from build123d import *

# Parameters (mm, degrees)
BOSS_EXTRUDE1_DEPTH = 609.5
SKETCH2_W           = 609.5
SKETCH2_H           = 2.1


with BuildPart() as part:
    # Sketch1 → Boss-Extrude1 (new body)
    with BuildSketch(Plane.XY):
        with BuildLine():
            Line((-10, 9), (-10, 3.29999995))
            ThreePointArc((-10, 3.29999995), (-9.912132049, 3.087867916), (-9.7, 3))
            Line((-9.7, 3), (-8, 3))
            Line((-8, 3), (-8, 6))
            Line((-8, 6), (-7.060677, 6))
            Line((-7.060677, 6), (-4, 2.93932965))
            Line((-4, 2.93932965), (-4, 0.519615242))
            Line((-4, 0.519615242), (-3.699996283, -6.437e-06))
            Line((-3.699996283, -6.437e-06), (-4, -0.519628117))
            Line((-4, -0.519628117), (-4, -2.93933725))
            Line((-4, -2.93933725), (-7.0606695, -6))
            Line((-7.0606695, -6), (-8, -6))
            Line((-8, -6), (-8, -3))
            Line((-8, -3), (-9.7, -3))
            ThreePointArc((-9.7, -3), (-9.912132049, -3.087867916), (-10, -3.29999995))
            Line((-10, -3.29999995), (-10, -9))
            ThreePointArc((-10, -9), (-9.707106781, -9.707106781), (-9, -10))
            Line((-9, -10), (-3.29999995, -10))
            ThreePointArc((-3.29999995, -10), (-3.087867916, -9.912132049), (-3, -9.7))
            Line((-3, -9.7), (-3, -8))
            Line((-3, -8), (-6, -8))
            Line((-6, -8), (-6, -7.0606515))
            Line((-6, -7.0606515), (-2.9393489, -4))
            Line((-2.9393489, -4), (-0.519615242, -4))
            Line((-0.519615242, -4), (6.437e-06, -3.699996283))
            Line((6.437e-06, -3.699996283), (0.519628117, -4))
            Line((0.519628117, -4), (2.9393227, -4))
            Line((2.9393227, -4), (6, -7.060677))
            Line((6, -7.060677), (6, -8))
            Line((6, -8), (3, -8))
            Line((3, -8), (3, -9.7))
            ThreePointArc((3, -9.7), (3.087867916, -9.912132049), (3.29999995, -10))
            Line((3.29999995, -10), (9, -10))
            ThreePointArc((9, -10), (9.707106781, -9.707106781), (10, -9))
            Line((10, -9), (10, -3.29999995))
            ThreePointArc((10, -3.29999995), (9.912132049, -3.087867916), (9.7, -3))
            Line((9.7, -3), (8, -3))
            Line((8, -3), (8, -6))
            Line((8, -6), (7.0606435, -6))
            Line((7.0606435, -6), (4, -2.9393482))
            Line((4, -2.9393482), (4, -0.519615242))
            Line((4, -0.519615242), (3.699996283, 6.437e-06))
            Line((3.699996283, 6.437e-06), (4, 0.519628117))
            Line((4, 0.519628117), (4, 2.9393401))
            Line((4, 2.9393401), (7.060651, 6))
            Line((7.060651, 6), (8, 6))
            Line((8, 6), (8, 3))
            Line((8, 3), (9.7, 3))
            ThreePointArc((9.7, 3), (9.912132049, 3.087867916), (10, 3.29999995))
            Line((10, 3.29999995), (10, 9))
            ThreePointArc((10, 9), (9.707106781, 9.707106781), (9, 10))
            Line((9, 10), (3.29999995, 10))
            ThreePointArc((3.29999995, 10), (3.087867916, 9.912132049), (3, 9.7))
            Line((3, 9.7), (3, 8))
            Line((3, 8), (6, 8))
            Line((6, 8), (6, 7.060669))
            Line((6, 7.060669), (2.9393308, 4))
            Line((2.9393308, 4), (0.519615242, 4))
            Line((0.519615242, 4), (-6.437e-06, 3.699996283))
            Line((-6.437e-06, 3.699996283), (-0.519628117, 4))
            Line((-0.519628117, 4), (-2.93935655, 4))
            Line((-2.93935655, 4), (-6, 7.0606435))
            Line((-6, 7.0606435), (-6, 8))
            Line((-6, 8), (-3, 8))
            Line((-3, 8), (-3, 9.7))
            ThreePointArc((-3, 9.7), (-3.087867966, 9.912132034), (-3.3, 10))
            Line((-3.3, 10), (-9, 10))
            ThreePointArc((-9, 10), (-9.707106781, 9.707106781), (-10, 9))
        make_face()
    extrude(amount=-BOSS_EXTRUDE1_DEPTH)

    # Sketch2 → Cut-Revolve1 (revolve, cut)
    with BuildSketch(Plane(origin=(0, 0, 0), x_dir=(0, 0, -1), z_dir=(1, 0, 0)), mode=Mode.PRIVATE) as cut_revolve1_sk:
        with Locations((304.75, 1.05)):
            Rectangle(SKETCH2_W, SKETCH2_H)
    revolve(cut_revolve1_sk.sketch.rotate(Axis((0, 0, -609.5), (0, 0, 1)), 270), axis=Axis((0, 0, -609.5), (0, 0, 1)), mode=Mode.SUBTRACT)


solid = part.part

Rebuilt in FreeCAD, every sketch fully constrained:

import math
import FreeCAD as App
import Part
import Sketcher
from FreeCAD import Vector
Q = App.Units.Quantity

doc = App.newDocument("Part")
params = doc.addObject("Spreadsheet::Sheet", "Params")
for row, (alias, value) in enumerate([
    ("sketch1_radius", "1 mm"),
    ("sketch1_radius2", "0.3 mm"),
    ("sketch1_width", "3 mm"),
    ("sketch1_width2", "1.7 mm"),
    ("sketch1_width3", "5.7 mm"),
    ("pad1_length", "609.5 mm"),
    ("sketch2_width", "2.1 mm"),
    ("sketch2_height", "609.5 mm"),
    ("groove_angle", "360 deg"),
], start=1):
    params.set(f"A{row}", alias)
    params.set(f"B{row}", "=" + value)
    params.setAlias(f"B{row}", alias)

body = doc.addObject("PartDesign::Body", "Body")

# Sketch on XY plane
sketch1 = body.newObject("Sketcher::SketchObject", "Sketch")
sketch1.AttachmentSupport = (doc.getObject("XY_Plane"), [""])
sketch1.MapMode = "FlatFace"
sketch1.addGeometry([
    Part.LineSegment(Vector(-10, 9, 0), Vector(-10, 3.3, 0)),  # 0
    Part.ArcOfCircle(Part.Circle(Vector(-9.7, 3.3, 0), Vector(0, 0, 1), 0.3), math.radians(180), math.radians(270)),  # 1
    Part.LineSegment(Vector(-9.7, 3, 0), Vector(-8, 3, 0)),  # 2
    Part.LineSegment(Vector(-8, 3, 0), Vector(-8, 6, 0)),  # 3
    Part.LineSegment(Vector(-8, 6, 0), Vector(-7.06, 6, 0)),  # 4
    Part.LineSegment(Vector(-7.06, 6, 0), Vector(-4, 2.94, 0)),  # 5
    Part.LineSegment(Vector(-4, 2.94, 0), Vector(-4, 0.52, 0)),  # 6
    Part.LineSegment(Vector(-4, 0.52, 0), Vector(-3.7, 0, 0)),  # 7
    Part.LineSegment(Vector(-3.7, 0, 0), Vector(-4, -0.52, 0)),  # 8
    Part.LineSegment(Vector(-4, -0.52, 0), Vector(-4, -2.94, 0)),  # 9
    Part.LineSegment(Vector(-4, -2.94, 0), Vector(-7.06, -6, 0)),  # 10
    Part.LineSegment(Vector(-7.06, -6, 0), Vector(-8, -6, 0)),  # 11
    Part.LineSegment(Vector(-8, -6, 0), Vector(-8, -3, 0)),  # 12
    Part.LineSegment(Vector(-8, -3, 0), Vector(-9.7, -3, 0)),  # 13
    Part.ArcOfCircle(Part.Circle(Vector(-9.7, -3.3, 0), Vector(0, 0, 1), 0.3), math.radians(90), math.radians(180)),  # 14
    Part.LineSegment(Vector(-10, -3.3, 0), Vector(-10, -9, 0)),  # 15
    Part.ArcOfCircle(Part.Circle(Vector(-9, -9, 0), Vector(0, 0, 1), 1), math.radians(-180), math.radians(-90)),  # 16
    Part.LineSegment(Vector(-9, -10, 0), Vector(-3.3, -10, 0)),  # 17
    Part.ArcOfCircle(Part.Circle(Vector(-3.3, -9.7, 0), Vector(0, 0, 1), 0.3), math.radians(-90), math.radians(0)),  # 18
    Part.LineSegment(Vector(-3, -9.7, 0), Vector(-3, -8, 0)),  # 19
    Part.LineSegment(Vector(-3, -8, 0), Vector(-6, -8, 0)),  # 20
    Part.LineSegment(Vector(-6, -8, 0), Vector(-6, -7.06, 0)),  # 21
    Part.LineSegment(Vector(-6, -7.06, 0), Vector(-2.94, -4, 0)),  # 22
    Part.LineSegment(Vector(-2.94, -4, 0), Vector(-0.52, -4, 0)),  # 23
    Part.LineSegment(Vector(-0.52, -4, 0), Vector(0, -3.7, 0)),  # 24
    Part.LineSegment(Vector(0, -3.7, 0), Vector(0.52, -4, 0)),  # 25
    Part.LineSegment(Vector(0.52, -4, 0), Vector(2.94, -4, 0)),  # 26
    Part.LineSegment(Vector(2.94, -4, 0), Vector(6, -7.06, 0)),  # 27
    Part.LineSegment(Vector(6, -7.06, 0), Vector(6, -8, 0)),  # 28
    Part.LineSegment(Vector(6, -8, 0), Vector(3, -8, 0)),  # 29
    Part.LineSegment(Vector(3, -8, 0), Vector(3, -9.7, 0)),  # 30
    Part.ArcOfCircle(Part.Circle(Vector(3.3, -9.7, 0), Vector(0, 0, 1), 0.3), math.radians(180), math.radians(270)),  # 31
    Part.LineSegment(Vector(3.3, -10, 0), Vector(9, -10, 0)),  # 32
    Part.ArcOfCircle(Part.Circle(Vector(9, -9, 0), Vector(0, 0, 1), 1), math.radians(-90), math.radians(0)),  # 33
    Part.LineSegment(Vector(10, -9, 0), Vector(10, -3.3, 0)),  # 34
    Part.ArcOfCircle(Part.Circle(Vector(9.7, -3.3, 0), Vector(0, 0, 1), 0.3), math.radians(0), math.radians(90)),  # 35
    Part.LineSegment(Vector(9.7, -3, 0), Vector(8, -3, 0)),  # 36
    Part.LineSegment(Vector(8, -3, 0), Vector(8, -6, 0)),  # 37
    Part.LineSegment(Vector(8, -6, 0), Vector(7.06, -6, 0)),  # 38
    Part.LineSegment(Vector(7.06, -6, 0), Vector(4, -2.94, 0)),  # 39
    Part.LineSegment(Vector(4, -2.94, 0), Vector(4, -0.52, 0)),  # 40
    Part.LineSegment(Vector(4, -0.52, 0), Vector(3.7, 0, 0)),  # 41
    Part.LineSegment(Vector(3.7, 0, 0), Vector(4, 0.52, 0)),  # 42
    Part.LineSegment(Vector(4, 0.52, 0), Vector(4, 2.94, 0)),  # 43
    Part.LineSegment(Vector(4, 2.94, 0), Vector(7.06, 6, 0)),  # 44
    Part.LineSegment(Vector(7.06, 6, 0), Vector(8, 6, 0)),  # 45
    Part.LineSegment(Vector(8, 6, 0), Vector(8, 3, 0)),  # 46
    Part.LineSegment(Vector(8, 3, 0), Vector(9.7, 3, 0)),  # 47
    Part.ArcOfCircle(Part.Circle(Vector(9.7, 3.3, 0), Vector(0, 0, 1), 0.3), math.radians(-90), math.radians(0)),  # 48
    Part.LineSegment(Vector(10, 3.3, 0), Vector(10, 9, 0)),  # 49
    Part.ArcOfCircle(Part.Circle(Vector(9, 9, 0), Vector(0, 0, 1), 1), math.radians(0), math.radians(90)),  # 50
    Part.LineSegment(Vector(9, 10, 0), Vector(3.3, 10, 0)),  # 51
    Part.ArcOfCircle(Part.Circle(Vector(3.3, 9.7, 0), Vector(0, 0, 1), 0.3), math.radians(90), math.radians(180)),  # 52
    Part.LineSegment(Vector(3, 9.7, 0), Vector(3, 8, 0)),  # 53
    Part.LineSegment(Vector(3, 8, 0), Vector(6, 8, 0)),  # 54
    Part.LineSegment(Vector(6, 8, 0), Vector(6, 7.06, 0)),  # 55
    Part.LineSegment(Vector(6, 7.06, 0), Vector(2.94, 4, 0)),  # 56
    Part.LineSegment(Vector(2.94, 4, 0), Vector(0.52, 4, 0)),  # 57
    Part.LineSegment(Vector(0.52, 4, 0), Vector(0, 3.7, 0)),  # 58
    Part.LineSegment(Vector(0, 3.7, 0), Vector(-0.52, 4, 0)),  # 59
    Part.LineSegment(Vector(-0.52, 4, 0), Vector(-2.94, 4, 0)),  # 60
    Part.LineSegment(Vector(-2.94, 4, 0), Vector(-6, 7.06, 0)),  # 61
    Part.LineSegment(Vector(-6, 7.06, 0), Vector(-6, 8, 0)),  # 62
    Part.LineSegment(Vector(-6, 8, 0), Vector(-3, 8, 0)),  # 63
    Part.LineSegment(Vector(-3, 8, 0), Vector(-3, 9.7, 0)),  # 64
    Part.ArcOfCircle(Part.Circle(Vector(-3.3, 9.7, 0), Vector(0, 0, 1), 0.3), math.radians(0), math.radians(90)),  # 65
    Part.LineSegment(Vector(-3.3, 10, 0), Vector(-9, 10, 0)),  # 66
    Part.ArcOfCircle(Part.Circle(Vector(-9, 9, 0), Vector(0, 0, 1), 1), math.radians(90), math.radians(180)),  # 67
], False)
sketch1.addConstraint([
    Sketcher.Constraint("Tangent", 0, 2, 1, 1),
    Sketcher.Constraint("Tangent", 1, 2, 2, 1),
    Sketcher.Constraint("Coincident", 2, 2, 3, 1),
    Sketcher.Constraint("Coincident", 3, 2, 4, 1),
    Sketcher.Constraint("Coincident", 4, 2, 5, 1),
    Sketcher.Constraint("Coincident", 5, 2, 6, 1),
    Sketcher.Constraint("Coincident", 6, 2, 7, 1),
    Sketcher.Constraint("Coincident", 7, 2, 8, 1),
    Sketcher.Constraint("Coincident", 8, 2, 9, 1),
    Sketcher.Constraint("Coincident", 9, 2, 10, 1),
    Sketcher.Constraint("Coincident", 10, 2, 11, 1),
    Sketcher.Constraint("Coincident", 11, 2, 12, 1),
    Sketcher.Constraint("Coincident", 12, 2, 13, 1),
    Sketcher.Constraint("Tangent", 13, 2, 14, 1),
    Sketcher.Constraint("Tangent", 14, 2, 15, 1),
    Sketcher.Constraint("Tangent", 15, 2, 16, 1),
    Sketcher.Constraint("Tangent", 16, 2, 17, 1),
    Sketcher.Constraint("Tangent", 17, 2, 18, 1),
    Sketcher.Constraint("Tangent", 18, 2, 19, 1),
    Sketcher.Constraint("Coincident", 19, 2, 20, 1),
    Sketcher.Constraint("Coincident", 20, 2, 21, 1),
    Sketcher.Constraint("Coincident", 21, 2, 22, 1),
    Sketcher.Constraint("Coincident", 22, 2, 23, 1),
    Sketcher.Constraint("Coincident", 23, 2, 24, 1),
    Sketcher.Constraint("Coincident", 24, 2, 25, 1),
    Sketcher.Constraint("Coincident", 25, 2, 26, 1),
    Sketcher.Constraint("Coincident", 26, 2, 27, 1),
    Sketcher.Constraint("Coincident", 27, 2, 28, 1),
    Sketcher.Constraint("Coincident", 28, 2, 29, 1),
    Sketcher.Constraint("Coincident", 29, 2, 30, 1),
    Sketcher.Constraint("Tangent", 30, 2, 31, 1),
    Sketcher.Constraint("Tangent", 31, 2, 32, 1),
    Sketcher.Constraint("Tangent", 32, 2, 33, 1),
    Sketcher.Constraint("Tangent", 33, 2, 34, 1),
    Sketcher.Constraint("Tangent", 34, 2, 35, 1),
    Sketcher.Constraint("Tangent", 35, 2, 36, 1),
    Sketcher.Constraint("Coincident", 36, 2, 37, 1),
    Sketcher.Constraint("Coincident", 37, 2, 38, 1),
    Sketcher.Constraint("Coincident", 38, 2, 39, 1),
    Sketcher.Constraint("Coincident", 39, 2, 40, 1),
    Sketcher.Constraint("Coincident", 40, 2, 41, 1),
    Sketcher.Constraint("Coincident", 41, 2, 42, 1),
    Sketcher.Constraint("Coincident", 42, 2, 43, 1),
    Sketcher.Constraint("Coincident", 43, 2, 44, 1),
    Sketcher.Constraint("Coincident", 44, 2, 45, 1),
    Sketcher.Constraint("Coincident", 45, 2, 46, 1),
    Sketcher.Constraint("Coincident", 46, 2, 47, 1),
    Sketcher.Constraint("Tangent", 47, 2, 48, 1),
    Sketcher.Constraint("Tangent", 48, 2, 49, 1),
    Sketcher.Constraint("Tangent", 49, 2, 50, 1),
    Sketcher.Constraint("Tangent", 50, 2, 51, 1),
    Sketcher.Constraint("Tangent", 51, 2, 52, 1),
    Sketcher.Constraint("Tangent", 52, 2, 53, 1),
    Sketcher.Constraint("Coincident", 53, 2, 54, 1),
    Sketcher.Constraint("Coincident", 54, 2, 55, 1),
    Sketcher.Constraint("Coincident", 55, 2, 56, 1),
    Sketcher.Constraint("Coincident", 56, 2, 57, 1),
    Sketcher.Constraint("Coincident", 57, 2, 58, 1),
    Sketcher.Constraint("Coincident", 58, 2, 59, 1),
    Sketcher.Constraint("Coincident", 59, 2, 60, 1),
    Sketcher.Constraint("Coincident", 60, 2, 61, 1),
    Sketcher.Constraint("Coincident", 61, 2, 62, 1),
    Sketcher.Constraint("Coincident", 62, 2, 63, 1),
    Sketcher.Constraint("Coincident", 63, 2, 64, 1),
    Sketcher.Constraint("Tangent", 64, 2, 65, 1),
    Sketcher.Constraint("Tangent", 65, 2, 66, 1),
    Sketcher.Constraint("Tangent", 66, 2, 67, 1),
    Sketcher.Constraint("Tangent", 67, 2, 0, 1),
    Sketcher.Constraint("Vertical", 0),
    Sketcher.Constraint("Horizontal", 2),
    Sketcher.Constraint("Vertical", 3),
    Sketcher.Constraint("Horizontal", 4),
    Sketcher.Constraint("Vertical", 6),
    Sketcher.Constraint("Vertical", 9),
    Sketcher.Constraint("Horizontal", 11),
    Sketcher.Constraint("Vertical", 12),
    Sketcher.Constraint("Horizontal", 13),
    Sketcher.Constraint("Vertical", 15),
    Sketcher.Constraint("Horizontal", 17),
    Sketcher.Constraint("Vertical", 19),
    Sketcher.Constraint("Horizontal", 20),
    Sketcher.Constraint("Vertical", 21),
    Sketcher.Constraint("Horizontal", 23),
    Sketcher.Constraint("Horizontal", 26),
    Sketcher.Constraint("Vertical", 28),
    Sketcher.Constraint("Horizontal", 29),
    Sketcher.Constraint("Vertical", 30),
    Sketcher.Constraint("Horizontal", 32),
    Sketcher.Constraint("Vertical", 34),
    Sketcher.Constraint("Horizontal", 36),
    Sketcher.Constraint("Vertical", 37),
    Sketcher.Constraint("Horizontal", 38),
    Sketcher.Constraint("Vertical", 40),
    Sketcher.Constraint("Vertical", 43),
    Sketcher.Constraint("Horizontal", 45),
    Sketcher.Constraint("Vertical", 46),
    Sketcher.Constraint("Horizontal", 47),
    Sketcher.Constraint("Vertical", 49),
    Sketcher.Constraint("Horizontal", 51),
    Sketcher.Constraint("Vertical", 53),
    Sketcher.Constraint("Horizontal", 54),
    Sketcher.Constraint("Vertical", 55),
    Sketcher.Constraint("Horizontal", 57),
    Sketcher.Constraint("Horizontal", 60),
    Sketcher.Constraint("Vertical", 62),
    Sketcher.Constraint("Horizontal", 63),
    Sketcher.Constraint("Vertical", 64),
    Sketcher.Constraint("Horizontal", 66),
    Sketcher.Constraint("Equal", 1, 14),
    Sketcher.Constraint("Equal", 14, 18),
    Sketcher.Constraint("Equal", 18, 31),
    Sketcher.Constraint("Equal", 16, 33),
    Sketcher.Constraint("Equal", 31, 35),
    Sketcher.Constraint("Equal", 35, 48),
    Sketcher.Constraint("Equal", 33, 50),
    Sketcher.Constraint("Equal", 48, 52),
    Sketcher.Constraint("Equal", 52, 65),
    Sketcher.Constraint("Equal", 50, 67),
    Sketcher.Constraint("Symmetric", 1, 3, 35, 3, -1, 1),
    Sketcher.Constraint("Symmetric", 14, 3, 48, 3, -1, 1),
    Sketcher.Constraint("Symmetric", 18, 3, 52, 3, -1, 1),
    Sketcher.Constraint("Symmetric", 31, 3, 65, 3, -1, 1),
    Sketcher.Constraint("Symmetric", 3, 2, 37, 2, -1, 1),
    Sketcher.Constraint("Symmetric", 6, 2, 40, 2, -1, 1),
    Sketcher.Constraint("Symmetric", 7, 2, 41, 2, -1, 1),
    Sketcher.Constraint("Symmetric", 8, 2, 42, 2, -1, 1),
    Sketcher.Constraint("Symmetric", 11, 2, 45, 2, -1, 1),
    Sketcher.Constraint("Symmetric", 20, 2, 54, 2, -1, 1),
    Sketcher.Constraint("Symmetric", 23, 2, 57, 2, -1, 1),
    Sketcher.Constraint("Symmetric", 24, 2, 58, 2, -1, 1),
    Sketcher.Constraint("Symmetric", 25, 2, 59, 2, -1, 1),
    Sketcher.Constraint("Symmetric", 28, 2, 62, 2, -1, 1),
    Sketcher.Constraint("Symmetric", 18, 3, 31, 3, -2),
    Sketcher.Constraint("Symmetric", 14, 3, 35, 3, -2),
    Sketcher.Constraint("Symmetric", 20, 2, 28, 2, -2),
    Sketcher.Constraint("Symmetric", 11, 2, 37, 2, -2),
    Sketcher.Constraint("Symmetric", 5, 2, 9, 2, -1),
    Sketcher.Constraint("Symmetric", 26, 2, 56, 2, -1),
    Sketcher.Constraint("Parallel", 10, 22),
    Sketcher.Constraint("Perpendicular", 7, 24),
    Sketcher.Constraint("Perpendicular", 8, 25),
    Sketcher.Constraint("Perpendicular", 22, 27),
    Sketcher.Constraint("Parallel", 27, 39),
    Sketcher.Constraint("Perpendicular", 27, 44),
    Sketcher.Constraint("Parallel", 44, 56),
    Sketcher.Constraint("Perpendicular", 56, 61),
    Sketcher.Constraint("Equal", 66, 0),
    Sketcher.Constraint("Equal", 63, 3),
    Sketcher.Constraint("Equal", 57, 6),
    Sketcher.Constraint("Equal", 47, 19),
    Sketcher.Constraint("Equal", 45, 21),
    Sketcher.Constraint("Equal", 4, 28),
    Sketcher.Constraint("Equal", 23, 40),
    Sketcher.Constraint("Equal", 11, 55),
    Sketcher.Constraint("Equal", 38, 62),
    Sketcher.Constraint("Equal", 7, 8),
    Sketcher.Constraint("Equal", 8, 24),
    Sketcher.Constraint("Radius", 16, 1.0),
    Sketcher.Constraint("Radius", 1, 0.3),
    Sketcher.Constraint("DistanceX", 20, 2, 20, 1, 3.0),
    Sketcher.Constraint("Angle", 7, Q("-60 deg")),
    Sketcher.Constraint("Angle", 22, Q("45.000004 deg")),
    Sketcher.Constraint("DistanceX", 2, 1, 2, 2, 1.7),
    Sketcher.Constraint("DistanceX", 17, 1, 17, 2, 5.7),
    Sketcher.Constraint("DistanceX", 16, 3, -1, 1, 9.0),
    Sketcher.Constraint("DistanceY", 16, 3, -1, 1, 9.0),
    Sketcher.Constraint("DistanceX", 5, 2, -1, 1, 4.0),
    Sketcher.Constraint("DistanceY", 22, 2, -1, 1, 4.0),
    Sketcher.Constraint("DistanceX", 11, 2, 11, 1, 0.93933),
    Sketcher.Constraint("DistanceX", 45, 1, 45, 2, 0.939349),
    Sketcher.Constraint("DistanceX", 60, 2, 60, 1, 2.419728),
    Sketcher.Constraint("DistanceX", 23, 1, 23, 2, 2.419734),
])
sketch1.setExpression("Constraints[157]", "Params.sketch1_radius")
sketch1.setExpression("Constraints[158]", "Params.sketch1_radius2")
sketch1.setExpression("Constraints[159]", "Params.sketch1_width")
sketch1.setExpression("Constraints[162]", "Params.sketch1_width2")
sketch1.setExpression("Constraints[163]", "Params.sketch1_width3")
pad1 = body.newObject("PartDesign::Pad", "Pad")
pad1.Profile = sketch1
pad1.setExpression("Length", "Params.pad1_length")
pad1.Reversed = True

# Sketch on YZ plane
sketch2 = body.newObject("Sketcher::SketchObject", "Sketch001")
sketch2.AttachmentSupport = (doc.getObject("YZ_Plane"), [""])
sketch2.MapMode = "FlatFace"
sketch2.addGeometry([
    Part.LineSegment(Vector(2.1, 0, 0), Vector(0, 0, 0)),
    Part.LineSegment(Vector(0, 0, 0), Vector(0, -609.5, 0)),
    Part.LineSegment(Vector(0, -609.5, 0), Vector(2.1, -609.5, 0)),
    Part.LineSegment(Vector(2.1, -609.5, 0), Vector(2.1, 0, 0)),
], False)
sketch2.addConstraint([
    Sketcher.Constraint("Coincident", 0, 2, 1, 1),
    Sketcher.Constraint("Coincident", 1, 2, 2, 1),
    Sketcher.Constraint("Coincident", 2, 2, 3, 1),
    Sketcher.Constraint("Coincident", 3, 2, 0, 1),
    Sketcher.Constraint("Horizontal", 0),
    Sketcher.Constraint("Vertical", 1),
    Sketcher.Constraint("Horizontal", 2),
    Sketcher.Constraint("Vertical", 3),
    Sketcher.Constraint("Coincident", 0, 2, -1, 1),
    Sketcher.Constraint("DistanceX", 0, 2, 0, 1, 2.1),
    Sketcher.Constraint("DistanceY", 1, 2, 1, 1, 609.5),
])
sketch2.setExpression("Constraints[9]", "Params.sketch2_width")
sketch2.setExpression("Constraints[10]", "Params.sketch2_height")
groove = body.newObject("PartDesign::Groove", "Groove")
groove.Profile = sketch2
groove.ReferenceAxis = (sketch2, ["V_Axis"])
groove.setExpression("Angle", "Params.groove_angle")

doc.recompute()
